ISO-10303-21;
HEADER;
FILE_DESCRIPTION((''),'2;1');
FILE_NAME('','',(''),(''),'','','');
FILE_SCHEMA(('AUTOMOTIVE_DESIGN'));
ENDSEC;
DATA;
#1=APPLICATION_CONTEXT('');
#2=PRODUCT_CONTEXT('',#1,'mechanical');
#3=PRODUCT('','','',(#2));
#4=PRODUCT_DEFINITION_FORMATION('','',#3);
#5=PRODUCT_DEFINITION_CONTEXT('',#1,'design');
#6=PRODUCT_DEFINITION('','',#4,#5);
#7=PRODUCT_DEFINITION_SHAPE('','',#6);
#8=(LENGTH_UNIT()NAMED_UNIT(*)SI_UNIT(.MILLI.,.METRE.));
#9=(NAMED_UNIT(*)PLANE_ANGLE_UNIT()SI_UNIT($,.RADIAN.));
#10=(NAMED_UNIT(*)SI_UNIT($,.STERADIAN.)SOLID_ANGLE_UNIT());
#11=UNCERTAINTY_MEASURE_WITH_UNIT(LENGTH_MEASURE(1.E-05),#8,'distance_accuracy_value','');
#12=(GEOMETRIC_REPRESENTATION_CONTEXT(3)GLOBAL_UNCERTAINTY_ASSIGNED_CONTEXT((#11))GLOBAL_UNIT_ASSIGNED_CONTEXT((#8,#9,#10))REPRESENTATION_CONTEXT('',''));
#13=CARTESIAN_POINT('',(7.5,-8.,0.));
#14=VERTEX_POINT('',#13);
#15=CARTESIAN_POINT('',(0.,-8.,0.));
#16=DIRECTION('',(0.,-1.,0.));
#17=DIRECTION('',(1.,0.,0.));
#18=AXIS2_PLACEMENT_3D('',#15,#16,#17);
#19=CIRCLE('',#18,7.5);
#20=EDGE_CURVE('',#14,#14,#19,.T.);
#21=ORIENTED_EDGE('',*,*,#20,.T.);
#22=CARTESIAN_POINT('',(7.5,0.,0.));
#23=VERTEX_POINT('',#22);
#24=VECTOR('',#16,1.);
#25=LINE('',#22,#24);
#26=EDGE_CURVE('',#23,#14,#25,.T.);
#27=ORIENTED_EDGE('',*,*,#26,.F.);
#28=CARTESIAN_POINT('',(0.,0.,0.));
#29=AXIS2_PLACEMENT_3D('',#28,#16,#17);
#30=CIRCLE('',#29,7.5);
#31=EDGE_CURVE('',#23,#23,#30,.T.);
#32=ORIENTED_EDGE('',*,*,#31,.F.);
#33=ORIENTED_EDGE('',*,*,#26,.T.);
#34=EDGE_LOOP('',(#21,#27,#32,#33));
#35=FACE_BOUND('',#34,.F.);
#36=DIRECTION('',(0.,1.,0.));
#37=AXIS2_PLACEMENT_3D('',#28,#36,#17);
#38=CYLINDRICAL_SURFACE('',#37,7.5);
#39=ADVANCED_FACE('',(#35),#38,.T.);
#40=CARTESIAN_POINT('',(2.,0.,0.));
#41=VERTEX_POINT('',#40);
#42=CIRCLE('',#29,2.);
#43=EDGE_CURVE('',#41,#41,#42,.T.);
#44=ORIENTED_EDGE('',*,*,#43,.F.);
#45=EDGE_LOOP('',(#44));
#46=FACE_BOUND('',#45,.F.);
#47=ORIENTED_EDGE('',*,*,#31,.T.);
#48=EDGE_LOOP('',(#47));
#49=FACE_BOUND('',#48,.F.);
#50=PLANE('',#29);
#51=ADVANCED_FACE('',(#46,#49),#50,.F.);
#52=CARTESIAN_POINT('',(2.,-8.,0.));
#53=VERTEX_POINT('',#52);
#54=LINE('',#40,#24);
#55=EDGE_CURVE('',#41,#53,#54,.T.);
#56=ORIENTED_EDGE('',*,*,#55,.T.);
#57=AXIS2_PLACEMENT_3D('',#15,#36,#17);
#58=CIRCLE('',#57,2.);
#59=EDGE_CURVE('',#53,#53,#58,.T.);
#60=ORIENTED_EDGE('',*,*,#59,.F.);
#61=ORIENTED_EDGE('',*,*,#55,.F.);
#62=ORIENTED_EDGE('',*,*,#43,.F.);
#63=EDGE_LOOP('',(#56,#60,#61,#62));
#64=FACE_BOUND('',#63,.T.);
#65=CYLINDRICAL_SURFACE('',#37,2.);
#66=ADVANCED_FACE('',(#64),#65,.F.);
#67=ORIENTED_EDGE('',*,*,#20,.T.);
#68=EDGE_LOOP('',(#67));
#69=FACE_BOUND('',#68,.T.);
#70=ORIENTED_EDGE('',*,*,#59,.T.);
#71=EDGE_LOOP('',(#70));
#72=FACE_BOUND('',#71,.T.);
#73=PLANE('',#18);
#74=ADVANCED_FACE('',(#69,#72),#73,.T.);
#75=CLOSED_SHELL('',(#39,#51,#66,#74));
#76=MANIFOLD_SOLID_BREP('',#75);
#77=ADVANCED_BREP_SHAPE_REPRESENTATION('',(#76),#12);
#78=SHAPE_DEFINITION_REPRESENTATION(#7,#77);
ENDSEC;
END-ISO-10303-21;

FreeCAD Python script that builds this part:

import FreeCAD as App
import Part
import Sketcher
from FreeCAD import Vector

doc = App.newDocument("Part")
body = doc.addObject("PartDesign::Body", "Body")

# Sketch on XZ plane
sketch1 = body.newObject("Sketcher::SketchObject", "Sketch")
sketch1.AttachmentSupport = (doc.getObject("XZ_Plane"), [""])
sketch1.MapMode = "FlatFace"
sketch1.addGeometry(Part.Circle(Vector(0, 0, 0), Vector(0, 0, 1), 8), False)
sketch1.addConstraint(Sketcher.Constraint("Coincident", 0, 3, -1, 1))
sketch1.addConstraint(Sketcher.Constraint("Diameter", 0, 15.0))
pad1 = body.newObject("PartDesign::Pad", "Pad")
pad1.Profile = sketch1
pad1.Length = 8

# Sketch on XZ plane
sketch2 = body.newObject("Sketcher::SketchObject", "Sketch001")
sketch2.AttachmentSupport = (doc.getObject("XZ_Plane"), [""])
sketch2.MapMode = "FlatFace"
sketch2.addGeometry(Part.Circle(Vector(0, 0, 0), Vector(0, 0, 1), 2), False)
sketch2.addConstraint(Sketcher.Constraint("Coincident", 0, 3, -1, 1))
sketch2.addConstraint(Sketcher.Constraint("Diameter", 0, 4.0))
pocket1 = body.newObject("PartDesign::Pocket", "Pocket")
pocket1.Profile = sketch2
pocket1.Type = "ThroughAll"
pocket1.Reversed = True

doc.recompute()
